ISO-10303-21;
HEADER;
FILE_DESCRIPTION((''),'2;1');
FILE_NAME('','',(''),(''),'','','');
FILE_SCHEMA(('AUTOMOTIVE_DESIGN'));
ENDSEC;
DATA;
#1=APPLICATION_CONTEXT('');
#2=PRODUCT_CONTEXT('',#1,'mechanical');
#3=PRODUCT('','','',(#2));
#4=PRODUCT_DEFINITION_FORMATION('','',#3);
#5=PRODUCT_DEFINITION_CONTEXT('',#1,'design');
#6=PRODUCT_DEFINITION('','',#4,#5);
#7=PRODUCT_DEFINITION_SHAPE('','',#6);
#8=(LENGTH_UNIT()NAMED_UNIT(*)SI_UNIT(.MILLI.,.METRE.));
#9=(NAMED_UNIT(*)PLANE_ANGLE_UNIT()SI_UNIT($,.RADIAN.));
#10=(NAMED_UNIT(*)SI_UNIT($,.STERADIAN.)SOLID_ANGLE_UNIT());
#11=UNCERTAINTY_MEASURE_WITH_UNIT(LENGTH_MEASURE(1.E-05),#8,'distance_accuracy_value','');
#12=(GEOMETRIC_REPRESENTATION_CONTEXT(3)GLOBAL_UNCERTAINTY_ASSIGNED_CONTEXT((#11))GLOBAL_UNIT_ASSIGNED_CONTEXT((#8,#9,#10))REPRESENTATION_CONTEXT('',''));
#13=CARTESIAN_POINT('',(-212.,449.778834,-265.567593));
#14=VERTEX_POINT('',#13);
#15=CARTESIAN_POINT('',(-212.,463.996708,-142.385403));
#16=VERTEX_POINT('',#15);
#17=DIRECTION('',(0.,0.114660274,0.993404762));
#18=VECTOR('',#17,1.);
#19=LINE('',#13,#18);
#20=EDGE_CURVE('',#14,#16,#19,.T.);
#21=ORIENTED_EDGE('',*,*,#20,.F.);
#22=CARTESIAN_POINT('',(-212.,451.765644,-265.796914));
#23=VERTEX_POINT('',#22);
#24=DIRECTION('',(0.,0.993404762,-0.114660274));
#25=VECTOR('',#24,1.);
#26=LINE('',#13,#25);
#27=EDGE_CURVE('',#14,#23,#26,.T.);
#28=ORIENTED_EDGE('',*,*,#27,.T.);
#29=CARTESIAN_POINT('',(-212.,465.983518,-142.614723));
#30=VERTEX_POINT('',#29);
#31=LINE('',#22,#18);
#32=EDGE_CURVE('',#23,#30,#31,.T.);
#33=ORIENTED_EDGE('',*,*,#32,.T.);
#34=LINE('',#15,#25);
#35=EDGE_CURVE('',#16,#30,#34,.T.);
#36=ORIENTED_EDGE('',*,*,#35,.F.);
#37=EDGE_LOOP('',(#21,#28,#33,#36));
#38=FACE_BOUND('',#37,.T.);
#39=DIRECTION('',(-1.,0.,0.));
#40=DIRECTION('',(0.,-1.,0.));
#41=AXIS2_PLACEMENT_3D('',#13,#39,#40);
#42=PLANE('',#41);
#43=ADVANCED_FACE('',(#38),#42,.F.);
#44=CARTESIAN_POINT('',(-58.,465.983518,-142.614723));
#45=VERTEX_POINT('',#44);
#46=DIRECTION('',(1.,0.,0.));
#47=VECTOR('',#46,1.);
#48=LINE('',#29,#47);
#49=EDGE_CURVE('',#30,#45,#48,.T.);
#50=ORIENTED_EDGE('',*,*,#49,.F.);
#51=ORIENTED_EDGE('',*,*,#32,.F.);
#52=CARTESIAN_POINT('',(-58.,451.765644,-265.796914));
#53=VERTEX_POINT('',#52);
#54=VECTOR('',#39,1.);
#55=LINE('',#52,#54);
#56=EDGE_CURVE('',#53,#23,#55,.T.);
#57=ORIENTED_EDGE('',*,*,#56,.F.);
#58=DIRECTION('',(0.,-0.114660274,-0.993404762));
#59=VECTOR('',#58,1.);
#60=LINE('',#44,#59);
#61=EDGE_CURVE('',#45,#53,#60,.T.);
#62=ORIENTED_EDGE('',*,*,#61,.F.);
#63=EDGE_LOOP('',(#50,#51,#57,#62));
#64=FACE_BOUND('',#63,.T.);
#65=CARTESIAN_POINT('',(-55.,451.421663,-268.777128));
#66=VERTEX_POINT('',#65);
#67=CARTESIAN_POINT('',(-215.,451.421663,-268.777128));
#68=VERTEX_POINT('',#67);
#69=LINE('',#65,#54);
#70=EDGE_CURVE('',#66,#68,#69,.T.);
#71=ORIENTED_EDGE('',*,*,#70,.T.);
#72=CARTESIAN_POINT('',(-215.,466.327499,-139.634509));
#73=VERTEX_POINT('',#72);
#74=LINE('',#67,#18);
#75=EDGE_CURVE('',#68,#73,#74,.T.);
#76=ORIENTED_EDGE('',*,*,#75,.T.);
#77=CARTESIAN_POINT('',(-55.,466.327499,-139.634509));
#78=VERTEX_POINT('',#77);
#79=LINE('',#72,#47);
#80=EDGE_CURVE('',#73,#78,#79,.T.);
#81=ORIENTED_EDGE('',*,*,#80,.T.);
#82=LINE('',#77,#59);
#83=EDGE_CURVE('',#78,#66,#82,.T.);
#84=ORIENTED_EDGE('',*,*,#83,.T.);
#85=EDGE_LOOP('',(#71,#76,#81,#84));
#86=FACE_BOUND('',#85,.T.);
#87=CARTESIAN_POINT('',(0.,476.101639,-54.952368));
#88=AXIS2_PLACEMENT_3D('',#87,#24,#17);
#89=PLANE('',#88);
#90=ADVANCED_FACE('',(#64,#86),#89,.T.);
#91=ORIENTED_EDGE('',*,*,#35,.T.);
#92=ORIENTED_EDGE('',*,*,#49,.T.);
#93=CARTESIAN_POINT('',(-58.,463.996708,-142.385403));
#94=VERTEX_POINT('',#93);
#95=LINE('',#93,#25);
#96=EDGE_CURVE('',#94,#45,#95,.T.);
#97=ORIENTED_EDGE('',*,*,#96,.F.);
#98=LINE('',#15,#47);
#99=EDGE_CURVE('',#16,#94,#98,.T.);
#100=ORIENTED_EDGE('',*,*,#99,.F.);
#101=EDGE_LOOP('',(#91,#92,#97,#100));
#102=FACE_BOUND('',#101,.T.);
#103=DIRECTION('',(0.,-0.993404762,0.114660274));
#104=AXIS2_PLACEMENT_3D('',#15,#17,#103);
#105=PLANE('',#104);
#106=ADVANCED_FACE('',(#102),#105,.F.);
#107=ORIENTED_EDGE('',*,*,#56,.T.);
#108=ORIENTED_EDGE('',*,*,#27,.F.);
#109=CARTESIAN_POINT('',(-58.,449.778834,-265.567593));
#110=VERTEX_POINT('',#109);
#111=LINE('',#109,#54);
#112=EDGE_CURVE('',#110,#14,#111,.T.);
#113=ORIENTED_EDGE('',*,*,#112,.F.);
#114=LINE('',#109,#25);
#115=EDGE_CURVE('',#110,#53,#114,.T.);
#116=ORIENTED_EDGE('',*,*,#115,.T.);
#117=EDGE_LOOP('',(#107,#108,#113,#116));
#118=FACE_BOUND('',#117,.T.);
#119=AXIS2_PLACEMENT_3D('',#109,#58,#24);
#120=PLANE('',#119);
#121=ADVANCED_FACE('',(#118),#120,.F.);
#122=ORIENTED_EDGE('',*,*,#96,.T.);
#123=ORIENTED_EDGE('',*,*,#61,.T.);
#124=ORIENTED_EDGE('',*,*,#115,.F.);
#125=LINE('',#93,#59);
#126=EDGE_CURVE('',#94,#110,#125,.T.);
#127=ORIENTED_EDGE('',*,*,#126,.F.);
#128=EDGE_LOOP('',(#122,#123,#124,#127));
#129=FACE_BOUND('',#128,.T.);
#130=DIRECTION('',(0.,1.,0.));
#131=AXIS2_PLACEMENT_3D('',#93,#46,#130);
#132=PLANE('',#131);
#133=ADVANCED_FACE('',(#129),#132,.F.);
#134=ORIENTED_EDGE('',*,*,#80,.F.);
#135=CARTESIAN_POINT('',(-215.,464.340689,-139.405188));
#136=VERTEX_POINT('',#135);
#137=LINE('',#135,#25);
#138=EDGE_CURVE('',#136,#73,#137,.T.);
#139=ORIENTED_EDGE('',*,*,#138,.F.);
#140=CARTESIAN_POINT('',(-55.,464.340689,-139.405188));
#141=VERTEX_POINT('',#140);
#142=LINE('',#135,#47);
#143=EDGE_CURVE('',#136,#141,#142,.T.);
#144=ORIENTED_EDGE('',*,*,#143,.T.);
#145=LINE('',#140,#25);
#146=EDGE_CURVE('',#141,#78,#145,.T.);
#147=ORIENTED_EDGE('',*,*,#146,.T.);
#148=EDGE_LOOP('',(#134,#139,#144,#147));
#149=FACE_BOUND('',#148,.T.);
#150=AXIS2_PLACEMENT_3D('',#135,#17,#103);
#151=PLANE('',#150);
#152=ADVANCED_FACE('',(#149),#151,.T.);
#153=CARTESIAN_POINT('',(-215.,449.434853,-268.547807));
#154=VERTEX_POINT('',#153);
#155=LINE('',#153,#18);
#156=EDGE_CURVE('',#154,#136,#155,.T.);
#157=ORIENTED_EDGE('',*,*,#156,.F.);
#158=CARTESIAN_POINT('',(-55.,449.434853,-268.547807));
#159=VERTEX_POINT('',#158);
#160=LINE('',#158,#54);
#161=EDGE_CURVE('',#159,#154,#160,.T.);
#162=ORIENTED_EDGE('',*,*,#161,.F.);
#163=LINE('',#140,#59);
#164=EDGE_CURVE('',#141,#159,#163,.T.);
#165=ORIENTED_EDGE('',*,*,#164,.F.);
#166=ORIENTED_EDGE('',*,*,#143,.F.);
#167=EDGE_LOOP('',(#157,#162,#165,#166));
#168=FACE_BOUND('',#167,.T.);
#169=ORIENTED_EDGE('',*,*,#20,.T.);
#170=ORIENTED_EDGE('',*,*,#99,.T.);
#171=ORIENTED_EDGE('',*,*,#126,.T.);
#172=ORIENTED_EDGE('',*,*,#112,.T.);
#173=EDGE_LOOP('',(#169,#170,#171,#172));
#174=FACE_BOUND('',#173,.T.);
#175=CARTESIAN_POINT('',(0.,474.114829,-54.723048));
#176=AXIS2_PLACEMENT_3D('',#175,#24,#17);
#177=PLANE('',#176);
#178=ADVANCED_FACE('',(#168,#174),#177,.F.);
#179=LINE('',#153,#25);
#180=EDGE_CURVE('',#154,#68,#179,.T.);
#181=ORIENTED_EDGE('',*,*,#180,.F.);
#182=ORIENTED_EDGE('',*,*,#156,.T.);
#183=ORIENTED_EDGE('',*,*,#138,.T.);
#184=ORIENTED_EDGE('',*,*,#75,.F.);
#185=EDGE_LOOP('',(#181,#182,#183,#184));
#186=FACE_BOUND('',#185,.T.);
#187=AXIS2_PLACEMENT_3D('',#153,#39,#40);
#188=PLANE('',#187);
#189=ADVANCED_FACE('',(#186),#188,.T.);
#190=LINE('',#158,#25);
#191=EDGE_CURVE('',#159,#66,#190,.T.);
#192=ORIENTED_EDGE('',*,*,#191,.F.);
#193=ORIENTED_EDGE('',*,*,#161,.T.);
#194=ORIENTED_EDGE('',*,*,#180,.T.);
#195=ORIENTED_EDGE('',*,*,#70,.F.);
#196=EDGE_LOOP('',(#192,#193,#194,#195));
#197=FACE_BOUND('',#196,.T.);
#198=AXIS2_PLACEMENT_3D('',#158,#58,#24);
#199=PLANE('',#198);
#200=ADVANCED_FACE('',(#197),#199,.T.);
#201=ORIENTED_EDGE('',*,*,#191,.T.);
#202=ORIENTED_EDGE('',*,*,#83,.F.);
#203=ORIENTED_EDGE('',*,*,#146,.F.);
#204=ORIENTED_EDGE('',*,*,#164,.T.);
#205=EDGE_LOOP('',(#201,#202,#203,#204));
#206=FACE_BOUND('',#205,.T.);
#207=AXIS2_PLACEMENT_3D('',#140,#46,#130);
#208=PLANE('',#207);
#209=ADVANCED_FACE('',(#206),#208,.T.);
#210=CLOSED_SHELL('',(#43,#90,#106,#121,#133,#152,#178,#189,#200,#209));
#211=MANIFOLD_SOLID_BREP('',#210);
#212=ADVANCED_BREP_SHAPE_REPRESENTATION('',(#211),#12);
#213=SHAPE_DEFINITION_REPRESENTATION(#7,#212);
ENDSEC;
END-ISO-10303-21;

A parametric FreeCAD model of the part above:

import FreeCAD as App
import Part
import Sketcher

V = App.Vector


def add_polygon(sketch, points):
    """Adds a closed chain of lines whose ends are joined by coincident constraints."""
    first, n = sketch.GeometryCount, len(points)
    for a, b in zip(points, points[1:] + points[:1]):
        sketch.addGeometry(Part.LineSegment(App.Vector(*a, 0), App.Vector(*b, 0)), False)
    for i in range(n):
        sketch.addConstraint(Sketcher.Constraint("Coincident", first + i, 2, first + (i + 1) % n, 1))

doc = App.newDocument("Part")
body = doc.addObject("PartDesign::Body", "Body")

# Sketch on an angled plane
sketch1 = body.newObject("Sketcher::SketchObject", "Sketch")
sketch1.Placement = App.Placement(V(0, 474.114829, -54.723048), App.Rotation(V(1, 0, 0), V(0, -0.114660274, -0.993404762), V(0, 0.993404762, -0.114660274), "ZXY"))
add_polygon(sketch1, [(-215, 215), (-215, 85), (-55, 85), (-55, 215)])  # lines 0-3
add_polygon(sketch1, [(-58, 88), (-212, 88), (-212, 212), (-58, 212)])  # lines 4-7
sketch1.addConstraint(Sketcher.Constraint("Vertical", 0))
sketch1.addConstraint(Sketcher.Constraint("Horizontal", 1))
sketch1.addConstraint(Sketcher.Constraint("Vertical", 2))
sketch1.addConstraint(Sketcher.Constraint("Horizontal", 3))
sketch1.addConstraint(Sketcher.Constraint("Horizontal", 4))
sketch1.addConstraint(Sketcher.Constraint("Vertical", 5))
sketch1.addConstraint(Sketcher.Constraint("Horizontal", 6))
sketch1.addConstraint(Sketcher.Constraint("Vertical", 7))
sketch1.addConstraint(Sketcher.Constraint("DistanceX", 1, 1, 1, 2, 160.0))
sketch1.addConstraint(Sketcher.Constraint("DistanceX", 4, 2, 4, 1, 154.0))
sketch1.addConstraint(Sketcher.Constraint("DistanceY", 0, 2, 0, 1, 130.0))
sketch1.addConstraint(Sketcher.Constraint("DistanceY", 5, 1, 5, 2, 124.0))
sketch1.addConstraint(Sketcher.Constraint("DistanceX", 0, 2, -1, 1, 215.0))
sketch1.addConstraint(Sketcher.Constraint("DistanceX", 4, 2, -1, 1, 212.0))
sketch1.addConstraint(Sketcher.Constraint("DistanceY", 0, 2, 4, 2, 3.0))
sketch1.addConstraint(Sketcher.Constraint("DistanceY", -1, 1, 0, 2, 85.244347))
pad1 = body.newObject("PartDesign::Pad", "Pad")
pad1.Profile = sketch1
pad1.Length = 2

doc.recompute()
